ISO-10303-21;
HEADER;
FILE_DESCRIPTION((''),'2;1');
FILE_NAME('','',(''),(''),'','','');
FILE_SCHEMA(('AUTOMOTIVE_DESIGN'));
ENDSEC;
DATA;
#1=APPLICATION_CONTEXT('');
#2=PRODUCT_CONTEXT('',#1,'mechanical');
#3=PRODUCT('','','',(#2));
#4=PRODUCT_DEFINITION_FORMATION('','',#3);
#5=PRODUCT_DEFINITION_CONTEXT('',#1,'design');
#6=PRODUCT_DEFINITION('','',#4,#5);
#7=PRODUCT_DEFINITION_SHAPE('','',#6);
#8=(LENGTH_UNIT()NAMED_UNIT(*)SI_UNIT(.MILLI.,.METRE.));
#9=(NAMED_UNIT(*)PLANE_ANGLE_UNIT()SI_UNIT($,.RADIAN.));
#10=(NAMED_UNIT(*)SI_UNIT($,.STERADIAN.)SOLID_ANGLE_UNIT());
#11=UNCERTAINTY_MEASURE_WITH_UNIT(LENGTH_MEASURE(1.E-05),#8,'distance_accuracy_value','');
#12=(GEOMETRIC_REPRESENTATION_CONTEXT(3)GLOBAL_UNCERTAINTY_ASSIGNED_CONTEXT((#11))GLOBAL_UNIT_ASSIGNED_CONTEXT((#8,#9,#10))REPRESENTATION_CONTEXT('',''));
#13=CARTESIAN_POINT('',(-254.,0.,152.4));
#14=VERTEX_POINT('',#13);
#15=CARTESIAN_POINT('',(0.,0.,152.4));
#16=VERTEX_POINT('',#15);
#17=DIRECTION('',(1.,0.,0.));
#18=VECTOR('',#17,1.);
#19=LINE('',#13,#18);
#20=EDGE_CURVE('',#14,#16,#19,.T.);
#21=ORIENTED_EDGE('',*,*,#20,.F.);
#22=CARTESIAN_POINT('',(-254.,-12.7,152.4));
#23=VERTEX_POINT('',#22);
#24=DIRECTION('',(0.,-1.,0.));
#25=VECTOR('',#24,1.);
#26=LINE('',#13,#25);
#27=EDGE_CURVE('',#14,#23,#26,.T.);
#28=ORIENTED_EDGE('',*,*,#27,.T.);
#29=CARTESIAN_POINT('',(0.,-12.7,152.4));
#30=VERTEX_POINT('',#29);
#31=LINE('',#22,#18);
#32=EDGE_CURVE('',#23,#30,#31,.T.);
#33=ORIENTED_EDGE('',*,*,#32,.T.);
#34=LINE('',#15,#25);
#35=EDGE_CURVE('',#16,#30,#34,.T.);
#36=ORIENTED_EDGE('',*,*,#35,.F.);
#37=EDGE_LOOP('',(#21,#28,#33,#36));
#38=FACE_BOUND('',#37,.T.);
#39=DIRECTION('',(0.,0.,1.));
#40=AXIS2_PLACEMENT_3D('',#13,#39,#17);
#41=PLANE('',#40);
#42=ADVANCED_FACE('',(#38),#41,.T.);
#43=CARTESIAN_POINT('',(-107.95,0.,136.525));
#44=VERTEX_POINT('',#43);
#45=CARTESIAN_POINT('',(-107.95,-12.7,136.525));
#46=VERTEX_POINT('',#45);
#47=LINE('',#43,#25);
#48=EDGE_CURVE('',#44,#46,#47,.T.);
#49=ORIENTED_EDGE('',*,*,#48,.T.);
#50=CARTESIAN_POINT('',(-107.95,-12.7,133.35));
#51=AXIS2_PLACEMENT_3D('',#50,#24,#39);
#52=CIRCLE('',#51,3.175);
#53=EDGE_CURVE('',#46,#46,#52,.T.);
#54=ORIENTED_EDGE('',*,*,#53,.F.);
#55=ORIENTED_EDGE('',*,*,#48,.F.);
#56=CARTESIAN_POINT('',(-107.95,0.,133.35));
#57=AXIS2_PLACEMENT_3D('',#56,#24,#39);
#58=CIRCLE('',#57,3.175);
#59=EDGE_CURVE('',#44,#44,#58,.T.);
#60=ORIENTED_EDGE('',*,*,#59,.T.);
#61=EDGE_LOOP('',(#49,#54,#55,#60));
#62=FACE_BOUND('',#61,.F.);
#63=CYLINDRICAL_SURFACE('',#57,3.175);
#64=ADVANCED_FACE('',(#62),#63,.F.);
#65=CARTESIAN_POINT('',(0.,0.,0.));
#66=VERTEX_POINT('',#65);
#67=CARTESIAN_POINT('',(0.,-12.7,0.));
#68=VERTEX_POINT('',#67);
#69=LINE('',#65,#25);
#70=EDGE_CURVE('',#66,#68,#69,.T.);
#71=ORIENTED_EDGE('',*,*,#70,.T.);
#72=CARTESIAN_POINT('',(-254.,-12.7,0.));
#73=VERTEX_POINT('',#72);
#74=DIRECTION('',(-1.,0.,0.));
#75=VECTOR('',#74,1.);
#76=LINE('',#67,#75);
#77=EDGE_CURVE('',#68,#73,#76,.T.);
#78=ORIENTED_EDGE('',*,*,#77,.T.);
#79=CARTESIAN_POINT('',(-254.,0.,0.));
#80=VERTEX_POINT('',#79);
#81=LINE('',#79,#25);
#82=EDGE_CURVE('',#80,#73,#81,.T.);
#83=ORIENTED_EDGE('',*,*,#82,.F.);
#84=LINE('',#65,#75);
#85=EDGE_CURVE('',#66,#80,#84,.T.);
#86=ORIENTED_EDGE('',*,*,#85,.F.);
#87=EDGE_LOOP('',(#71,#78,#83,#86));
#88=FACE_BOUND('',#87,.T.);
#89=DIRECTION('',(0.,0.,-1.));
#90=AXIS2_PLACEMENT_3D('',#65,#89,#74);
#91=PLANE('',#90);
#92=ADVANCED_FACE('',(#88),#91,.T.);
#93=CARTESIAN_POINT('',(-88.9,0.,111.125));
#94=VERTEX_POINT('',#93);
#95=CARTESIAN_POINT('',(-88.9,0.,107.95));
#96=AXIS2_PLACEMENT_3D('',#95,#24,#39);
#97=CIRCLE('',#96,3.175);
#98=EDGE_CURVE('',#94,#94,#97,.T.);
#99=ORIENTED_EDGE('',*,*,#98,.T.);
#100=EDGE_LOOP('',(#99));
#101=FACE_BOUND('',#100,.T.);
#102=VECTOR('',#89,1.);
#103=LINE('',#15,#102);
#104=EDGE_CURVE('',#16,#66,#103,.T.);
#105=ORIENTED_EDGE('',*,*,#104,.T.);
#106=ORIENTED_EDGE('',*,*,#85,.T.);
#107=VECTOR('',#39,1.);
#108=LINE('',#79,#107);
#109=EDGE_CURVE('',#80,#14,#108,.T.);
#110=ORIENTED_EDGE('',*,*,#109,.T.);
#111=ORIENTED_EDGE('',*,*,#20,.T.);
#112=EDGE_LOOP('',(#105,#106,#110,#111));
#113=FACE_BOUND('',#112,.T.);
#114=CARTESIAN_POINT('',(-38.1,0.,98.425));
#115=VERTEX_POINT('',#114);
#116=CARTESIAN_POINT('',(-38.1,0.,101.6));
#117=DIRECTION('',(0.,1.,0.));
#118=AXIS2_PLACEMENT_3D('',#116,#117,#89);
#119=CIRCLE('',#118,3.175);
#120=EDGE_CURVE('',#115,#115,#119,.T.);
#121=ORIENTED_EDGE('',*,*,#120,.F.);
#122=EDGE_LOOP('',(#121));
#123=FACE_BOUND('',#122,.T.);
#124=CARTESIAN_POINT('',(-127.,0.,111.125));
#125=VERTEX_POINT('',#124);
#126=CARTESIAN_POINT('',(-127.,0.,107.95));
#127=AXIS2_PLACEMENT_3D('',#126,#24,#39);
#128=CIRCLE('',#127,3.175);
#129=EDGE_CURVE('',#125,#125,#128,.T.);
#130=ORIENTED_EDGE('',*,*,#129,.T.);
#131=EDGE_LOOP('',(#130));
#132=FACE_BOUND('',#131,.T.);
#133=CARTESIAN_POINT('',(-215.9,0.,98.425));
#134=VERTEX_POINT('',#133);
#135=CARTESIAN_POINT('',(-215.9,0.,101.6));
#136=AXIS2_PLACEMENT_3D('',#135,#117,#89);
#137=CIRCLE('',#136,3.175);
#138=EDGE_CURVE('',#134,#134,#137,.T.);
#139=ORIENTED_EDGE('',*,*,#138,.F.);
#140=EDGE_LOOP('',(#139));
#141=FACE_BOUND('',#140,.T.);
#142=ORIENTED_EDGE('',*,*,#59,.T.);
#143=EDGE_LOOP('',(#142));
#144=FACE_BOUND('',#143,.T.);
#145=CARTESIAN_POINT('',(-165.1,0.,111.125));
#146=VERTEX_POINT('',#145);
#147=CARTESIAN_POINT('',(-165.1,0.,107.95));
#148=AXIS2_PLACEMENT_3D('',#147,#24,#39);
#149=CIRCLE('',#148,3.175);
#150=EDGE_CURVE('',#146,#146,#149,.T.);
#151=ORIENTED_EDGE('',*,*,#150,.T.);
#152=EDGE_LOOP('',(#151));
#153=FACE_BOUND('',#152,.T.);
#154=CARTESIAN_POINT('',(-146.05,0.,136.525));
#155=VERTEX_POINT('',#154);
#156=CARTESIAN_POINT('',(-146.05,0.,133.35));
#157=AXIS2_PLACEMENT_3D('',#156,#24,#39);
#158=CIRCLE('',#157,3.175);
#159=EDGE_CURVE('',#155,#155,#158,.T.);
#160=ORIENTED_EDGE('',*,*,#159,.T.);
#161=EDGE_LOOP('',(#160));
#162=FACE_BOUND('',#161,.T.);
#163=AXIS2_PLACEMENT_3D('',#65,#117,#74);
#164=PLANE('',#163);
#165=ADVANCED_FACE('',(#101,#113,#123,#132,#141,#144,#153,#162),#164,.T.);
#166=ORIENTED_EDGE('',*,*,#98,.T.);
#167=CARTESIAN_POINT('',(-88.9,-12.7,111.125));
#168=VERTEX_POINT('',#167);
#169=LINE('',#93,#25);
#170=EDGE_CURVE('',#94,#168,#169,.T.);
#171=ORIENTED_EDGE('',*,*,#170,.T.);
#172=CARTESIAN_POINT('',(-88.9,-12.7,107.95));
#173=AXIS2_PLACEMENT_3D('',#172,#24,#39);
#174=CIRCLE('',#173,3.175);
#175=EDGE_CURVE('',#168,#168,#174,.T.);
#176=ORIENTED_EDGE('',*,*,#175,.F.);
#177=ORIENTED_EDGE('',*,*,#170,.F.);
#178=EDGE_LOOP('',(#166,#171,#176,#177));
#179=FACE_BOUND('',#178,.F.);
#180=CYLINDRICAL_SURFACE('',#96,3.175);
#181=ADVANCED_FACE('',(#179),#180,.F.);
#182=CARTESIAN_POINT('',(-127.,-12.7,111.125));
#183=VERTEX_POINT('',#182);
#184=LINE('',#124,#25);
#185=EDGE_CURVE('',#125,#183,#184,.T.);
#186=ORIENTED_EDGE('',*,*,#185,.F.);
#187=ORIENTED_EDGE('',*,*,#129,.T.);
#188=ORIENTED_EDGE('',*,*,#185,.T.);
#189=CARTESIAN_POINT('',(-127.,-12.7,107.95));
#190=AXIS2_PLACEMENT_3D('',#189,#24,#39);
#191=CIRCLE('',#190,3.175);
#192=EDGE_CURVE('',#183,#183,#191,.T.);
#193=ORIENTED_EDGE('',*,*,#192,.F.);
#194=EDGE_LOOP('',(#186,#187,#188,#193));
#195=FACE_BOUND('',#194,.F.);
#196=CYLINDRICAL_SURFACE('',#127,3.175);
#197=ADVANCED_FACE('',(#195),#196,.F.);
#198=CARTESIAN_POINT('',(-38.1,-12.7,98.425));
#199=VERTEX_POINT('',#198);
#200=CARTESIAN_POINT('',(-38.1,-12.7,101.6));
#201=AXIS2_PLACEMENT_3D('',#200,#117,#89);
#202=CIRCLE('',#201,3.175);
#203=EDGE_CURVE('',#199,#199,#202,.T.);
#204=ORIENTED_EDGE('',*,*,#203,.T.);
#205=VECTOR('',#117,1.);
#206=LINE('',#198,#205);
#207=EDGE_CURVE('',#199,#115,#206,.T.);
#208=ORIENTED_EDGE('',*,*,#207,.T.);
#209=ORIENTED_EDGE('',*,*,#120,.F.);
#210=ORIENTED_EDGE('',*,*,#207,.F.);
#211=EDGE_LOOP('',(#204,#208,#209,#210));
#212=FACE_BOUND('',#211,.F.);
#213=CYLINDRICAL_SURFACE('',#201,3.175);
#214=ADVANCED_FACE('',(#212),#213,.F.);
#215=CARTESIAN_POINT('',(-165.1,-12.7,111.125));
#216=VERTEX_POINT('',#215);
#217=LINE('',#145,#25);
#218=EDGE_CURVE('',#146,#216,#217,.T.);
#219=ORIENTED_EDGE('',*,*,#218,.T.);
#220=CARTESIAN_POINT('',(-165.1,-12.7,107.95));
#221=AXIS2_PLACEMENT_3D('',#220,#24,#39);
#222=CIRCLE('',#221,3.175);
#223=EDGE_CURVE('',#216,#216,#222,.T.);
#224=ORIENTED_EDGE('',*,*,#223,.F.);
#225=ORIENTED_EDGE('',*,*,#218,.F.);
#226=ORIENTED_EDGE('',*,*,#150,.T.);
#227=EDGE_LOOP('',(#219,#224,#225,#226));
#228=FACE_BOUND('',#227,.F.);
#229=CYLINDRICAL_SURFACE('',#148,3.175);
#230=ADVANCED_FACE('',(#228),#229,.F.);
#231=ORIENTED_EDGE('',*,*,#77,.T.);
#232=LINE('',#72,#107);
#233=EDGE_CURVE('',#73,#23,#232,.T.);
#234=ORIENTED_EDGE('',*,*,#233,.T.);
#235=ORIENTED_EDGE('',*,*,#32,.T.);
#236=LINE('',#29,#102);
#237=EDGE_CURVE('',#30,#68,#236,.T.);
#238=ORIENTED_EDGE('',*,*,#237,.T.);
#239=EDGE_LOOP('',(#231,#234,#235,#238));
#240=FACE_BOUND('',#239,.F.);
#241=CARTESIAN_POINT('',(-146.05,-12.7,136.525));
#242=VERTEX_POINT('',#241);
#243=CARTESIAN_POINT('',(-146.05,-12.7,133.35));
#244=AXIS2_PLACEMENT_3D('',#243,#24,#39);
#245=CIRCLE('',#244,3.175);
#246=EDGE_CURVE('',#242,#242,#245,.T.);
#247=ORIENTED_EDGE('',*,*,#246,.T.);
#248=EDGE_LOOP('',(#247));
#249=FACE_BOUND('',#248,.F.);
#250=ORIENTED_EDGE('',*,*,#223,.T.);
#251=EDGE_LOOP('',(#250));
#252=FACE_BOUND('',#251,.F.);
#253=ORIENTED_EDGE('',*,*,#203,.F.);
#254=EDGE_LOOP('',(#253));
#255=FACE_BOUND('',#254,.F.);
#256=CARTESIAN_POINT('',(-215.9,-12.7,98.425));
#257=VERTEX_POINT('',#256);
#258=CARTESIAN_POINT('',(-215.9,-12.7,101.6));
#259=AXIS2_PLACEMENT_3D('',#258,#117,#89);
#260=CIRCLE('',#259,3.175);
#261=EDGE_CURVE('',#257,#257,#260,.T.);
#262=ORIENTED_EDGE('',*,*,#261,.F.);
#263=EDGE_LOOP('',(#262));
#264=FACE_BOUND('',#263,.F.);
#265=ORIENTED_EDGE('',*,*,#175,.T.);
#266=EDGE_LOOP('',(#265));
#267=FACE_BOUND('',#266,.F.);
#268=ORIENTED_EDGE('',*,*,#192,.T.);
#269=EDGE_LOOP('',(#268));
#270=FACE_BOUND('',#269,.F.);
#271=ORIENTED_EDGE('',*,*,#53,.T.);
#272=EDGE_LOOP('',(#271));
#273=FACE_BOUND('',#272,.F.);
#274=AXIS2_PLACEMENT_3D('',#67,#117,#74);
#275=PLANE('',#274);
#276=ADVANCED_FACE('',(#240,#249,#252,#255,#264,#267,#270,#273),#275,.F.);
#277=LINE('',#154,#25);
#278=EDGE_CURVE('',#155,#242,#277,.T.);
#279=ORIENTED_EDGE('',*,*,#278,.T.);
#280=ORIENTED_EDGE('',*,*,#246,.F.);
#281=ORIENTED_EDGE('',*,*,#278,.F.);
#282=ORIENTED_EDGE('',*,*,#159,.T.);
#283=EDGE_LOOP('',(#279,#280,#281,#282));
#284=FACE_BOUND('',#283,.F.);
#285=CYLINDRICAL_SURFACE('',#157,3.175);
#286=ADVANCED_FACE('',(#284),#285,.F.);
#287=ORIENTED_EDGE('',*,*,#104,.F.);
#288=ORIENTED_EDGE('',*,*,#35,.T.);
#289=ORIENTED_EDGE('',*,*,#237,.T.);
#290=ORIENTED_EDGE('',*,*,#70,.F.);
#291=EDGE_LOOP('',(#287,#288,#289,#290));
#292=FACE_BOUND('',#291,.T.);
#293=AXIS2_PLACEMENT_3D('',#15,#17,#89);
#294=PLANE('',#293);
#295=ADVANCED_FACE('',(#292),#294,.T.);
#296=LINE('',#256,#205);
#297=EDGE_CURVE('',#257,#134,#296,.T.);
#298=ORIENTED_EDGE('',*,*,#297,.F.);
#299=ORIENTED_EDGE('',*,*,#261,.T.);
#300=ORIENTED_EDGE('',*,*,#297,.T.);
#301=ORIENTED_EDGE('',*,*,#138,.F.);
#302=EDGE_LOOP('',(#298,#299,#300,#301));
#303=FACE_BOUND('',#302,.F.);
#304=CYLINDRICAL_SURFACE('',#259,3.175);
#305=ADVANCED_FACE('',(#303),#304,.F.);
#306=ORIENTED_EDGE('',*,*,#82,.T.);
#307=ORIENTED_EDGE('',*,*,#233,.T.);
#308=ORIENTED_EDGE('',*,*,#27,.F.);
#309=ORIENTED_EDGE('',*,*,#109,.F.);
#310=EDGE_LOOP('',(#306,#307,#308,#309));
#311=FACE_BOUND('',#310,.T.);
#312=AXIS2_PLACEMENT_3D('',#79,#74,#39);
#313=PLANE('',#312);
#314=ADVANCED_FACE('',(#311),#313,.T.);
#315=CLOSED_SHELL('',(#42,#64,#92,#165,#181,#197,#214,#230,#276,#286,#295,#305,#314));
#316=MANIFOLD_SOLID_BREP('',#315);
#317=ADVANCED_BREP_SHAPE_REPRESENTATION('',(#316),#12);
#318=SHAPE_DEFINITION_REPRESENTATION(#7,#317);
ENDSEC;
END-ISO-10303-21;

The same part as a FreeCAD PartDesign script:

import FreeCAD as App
import Part
import Sketcher

V = App.Vector
Q = App.Units.Quantity

doc = App.newDocument("Part")
body = doc.addObject("PartDesign::Body", "Body")

# Sketch on XZ plane
sketch1 = body.newObject("Sketcher::SketchObject", "Sketch")
sketch1.AttachmentSupport = (doc.getObject("XZ_Plane"), [""])
sketch1.MapMode = "FlatFace"
sketch1.addGeometry([
    Part.LineSegment(V(0, 152, 0), V(0, 0, 0)),
    Part.LineSegment(V(0, 0, 0), V(-254, 0, 0)),
    Part.LineSegment(V(-254, 0, 0), V(-254, 152, 0)),
    Part.LineSegment(V(-254, 152, 0), V(0, 152, 0)),
], False)
sketch1.addConstraint([
    Sketcher.Constraint("Coincident", 0, 2, 1, 1),
    Sketcher.Constraint("Coincident", 1, 2, 2, 1),
    Sketcher.Constraint("Coincident", 2, 2, 3, 1),
    Sketcher.Constraint("Coincident", 3, 2, 0, 1),
    Sketcher.Constraint("Vertical", 0),
    Sketcher.Constraint("Horizontal", 1),
    Sketcher.Constraint("Vertical", 2),
    Sketcher.Constraint("Horizontal", 3),
    Sketcher.Constraint("Coincident", 0, 2, -1, 1),
    Sketcher.Constraint("DistanceX", 1, 2, 1, 1, Q("10 in")),
    Sketcher.Constraint("DistanceY", 0, 2, 0, 1, Q("6 in")),
])
pad1 = body.newObject("PartDesign::Pad", "Pad")
pad1.Profile = sketch1
pad1.Length = Q("0.5 in")

# Sketch on XZ plane
sketch2 = body.newObject("Sketcher::SketchObject", "Sketch001")
sketch2.AttachmentSupport = (doc.getObject("XZ_Plane"), [""])
sketch2.MapMode = "FlatFace"
sketch2.AttachmentOffset = App.Placement(V(0, 0, 0.5 * 25.4), App.Rotation())
sketch2.addGeometry([
    Part.Circle(V(-38.1, 101.6, 0), V(0, 0, 1), 3.2),
    Part.Circle(V(-215.9, 101.6, 0), V(0, 0, 1), 3.2),
], False)
sketch2.addConstraint([
    Sketcher.Constraint("Equal", 0, 1),
    Sketcher.Constraint("Horizontal", 0, 3, 1, 3),
    Sketcher.Constraint("Diameter", 0, Q("0.25 in")),
    Sketcher.Constraint("DistanceY", -1, 1, 0, 3, Q("4 in")),
    Sketcher.Constraint("DistanceX", 1, 3, 0, 3, Q("7 in")),
    Sketcher.Constraint("DistanceX", 0, 3, -1, 1, Q("1.5 in")),
])
doc.recompute()
hole = body.newObject("PartDesign::Hole", "Hole")
hole.Profile = sketch2
hole.ThreadType = "None"
hole.Diameter = Q("0.25 in")
hole.DepthType = "ThroughAll"

# Sketch on XZ plane
sketch3 = body.newObject("Sketcher::SketchObject", "Sketch002")
sketch3.AttachmentSupport = (doc.getObject("XZ_Plane"), [""])
sketch3.MapMode = "FlatFace"
sketch3.addGeometry([
    Part.Circle(V(-88.9, 108, 0), V(0, 0, 1), 3.2),  # 0
    Part.Circle(V(-127, 108, 0), V(0, 0, 1), 3.2),  # 1
    Part.Circle(V(-165.1, 108, 0), V(0, 0, 1), 3.2),  # 2
    Part.Circle(V(-146.1, 133.3, 0), V(0, 0, 1), 3.2),  # 3
    Part.Circle(V(-108, 133.3, 0), V(0, 0, 1), 3.2),  # 4
], False)
sketch3.addConstraint([
    Sketcher.Constraint("Equal", 0, 1),
    Sketcher.Constraint("Equal", 1, 2),
    Sketcher.Constraint("Equal", 2, 3),
    Sketcher.Constraint("Equal", 3, 4),
    Sketcher.Constraint("Horizontal", 0, 3, 1, 3),
    Sketcher.Constraint("Horizontal", 1, 3, 2, 3),
    Sketcher.Constraint("Horizontal", 3, 3, 4, 3),
    Sketcher.Constraint("Diameter", 0, Q("0.25 in")),
    Sketcher.Constraint("DistanceX", 1, 3, -1, 1, Q("5 in")),
    Sketcher.Constraint("DistanceX", 2, 3, 0, 3, Q("3 in")),
    Sketcher.Constraint("DistanceY", 2, 3, 3, 3, Q("1 in")),
    Sketcher.Constraint("DistanceX", 0, 3, -1, 1, Q("3.5 in")),
    Sketcher.Constraint("DistanceX", 3, 3, 4, 3, Q("1.5 in")),
    Sketcher.Constraint("DistanceY", -1, 1, 0, 3, Q("4.25 in")),
    Sketcher.Constraint("DistanceX", 3, 3, -1, 1, Q("5.75 in")),
])
doc.recompute()
hole2 = body.newObject("PartDesign::Hole", "Hole001")
hole2.Profile = sketch3
hole2.ThreadType = "None"
hole2.Diameter = Q("0.25 in")
hole2.DepthType = "ThroughAll"
hole2.Reversed = True

doc.recompute()
